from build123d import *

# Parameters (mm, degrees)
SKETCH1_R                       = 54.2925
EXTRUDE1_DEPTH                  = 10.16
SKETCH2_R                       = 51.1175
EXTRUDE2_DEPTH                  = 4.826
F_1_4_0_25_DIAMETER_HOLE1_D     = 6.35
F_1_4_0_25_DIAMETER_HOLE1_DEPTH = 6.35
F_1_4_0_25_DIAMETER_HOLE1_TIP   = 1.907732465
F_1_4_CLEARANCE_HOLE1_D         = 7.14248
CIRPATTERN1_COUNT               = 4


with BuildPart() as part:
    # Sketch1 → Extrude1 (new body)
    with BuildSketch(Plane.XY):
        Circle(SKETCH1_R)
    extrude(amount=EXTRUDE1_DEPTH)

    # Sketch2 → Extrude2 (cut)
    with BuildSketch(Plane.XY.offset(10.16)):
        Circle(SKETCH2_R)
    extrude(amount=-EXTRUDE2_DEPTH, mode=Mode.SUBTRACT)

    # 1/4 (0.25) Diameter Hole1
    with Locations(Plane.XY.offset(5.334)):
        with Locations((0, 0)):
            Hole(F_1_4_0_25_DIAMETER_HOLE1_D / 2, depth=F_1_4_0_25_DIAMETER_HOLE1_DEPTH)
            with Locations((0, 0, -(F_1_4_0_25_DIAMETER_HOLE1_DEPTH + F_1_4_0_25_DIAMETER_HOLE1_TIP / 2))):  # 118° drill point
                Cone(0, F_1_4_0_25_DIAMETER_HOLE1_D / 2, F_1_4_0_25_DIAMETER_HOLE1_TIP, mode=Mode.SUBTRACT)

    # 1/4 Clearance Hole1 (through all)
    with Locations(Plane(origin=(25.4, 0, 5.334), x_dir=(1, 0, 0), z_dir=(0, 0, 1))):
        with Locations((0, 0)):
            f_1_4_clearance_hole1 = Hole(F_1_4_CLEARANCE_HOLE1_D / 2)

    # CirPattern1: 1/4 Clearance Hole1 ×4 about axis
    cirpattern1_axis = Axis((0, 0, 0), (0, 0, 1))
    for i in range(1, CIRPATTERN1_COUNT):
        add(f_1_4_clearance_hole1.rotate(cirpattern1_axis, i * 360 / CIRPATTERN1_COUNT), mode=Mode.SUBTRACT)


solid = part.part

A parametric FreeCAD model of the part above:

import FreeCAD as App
import Part
import Sketcher
Q = App.Units.Quantity

doc = App.newDocument("Part")
body = doc.addObject("PartDesign::Body", "Body")

# Sketch on XY plane
sketch1 = doc.addObject("Sketcher::SketchObject", "Sketch")
body.addObject(sketch1)
sketch1.AttachmentSupport = (doc.XY_Plane, [""])
sketch1.MapMode = "FlatFace"
sketch1.addGeometry(Part.Circle(App.Vector(0, 0, 0), App.Vector(0, 0, 1), 54), False)
sketch1.addConstraint([
    Sketcher.Constraint("Coincident", 0, 3, -1, 1),
    Sketcher.Constraint("Diameter", 0, Q("4.275 in")),
])
pad1 = doc.addObject("PartDesign::Pad", "Pad")
body.addObject(pad1)
pad1.Profile = sketch1
pad1.Length = Q("0.4 in")

# Sketch on XY plane
sketch2 = doc.addObject("Sketcher::SketchObject", "Sketch001")
body.addObject(sketch2)
sketch2.AttachmentSupport = (doc.XY_Plane, [""])
sketch2.MapMode = "FlatFace"
sketch2.AttachmentOffset = App.Placement(App.Vector(0, 0, 0.4 * 25.4), App.Rotation())
sketch2.addGeometry(Part.Circle(App.Vector(0, 0, 0), App.Vector(0, 0, 1), 51), False)
sketch2.addConstraint([
    Sketcher.Constraint("Coincident", 0, 3, -1, 1),
    Sketcher.Constraint("Diameter", 0, Q("4.025 in")),
])
pocket1 = doc.addObject("PartDesign::Pocket", "Pocket")
body.addObject(pocket1)
pocket1.Profile = sketch2
pocket1.Length = Q("0.19 in")

# Sketch on XY plane
sketch3 = doc.addObject("Sketcher::SketchObject", "Sketch002")
body.addObject(sketch3)
sketch3.AttachmentSupport = (doc.XY_Plane, [""])
sketch3.MapMode = "FlatFace"
sketch3.AttachmentOffset = App.Placement(App.Vector(0, 0, 0.21 * 25.4), App.Rotation())
sketch3.addGeometry(Part.Circle(App.Vector(0, 0, 0), App.Vector(0, 0, 1), 3.2), False)
sketch3.addConstraint([
    Sketcher.Constraint("Coincident", 0, 3, -1, 1),
    Sketcher.Constraint("Diameter", 0, Q("0.25 in")),
])
doc.recompute()
hole = doc.addObject("PartDesign::Hole", "Hole")
body.addObject(hole)
hole.Profile = sketch3
hole.ThreadType = "None"
hole.Diameter = Q("0.25 in")
hole.DepthType = "Dimension"
hole.Depth = Q("0.25 in")
hole.DrillPoint = "Angled"
hole.DrillPointAngle = 118

# Sketch on XY plane
sketch4 = doc.addObject("Sketcher::SketchObject", "Sketch003")
body.addObject(sketch4)
sketch4.AttachmentSupport = (doc.XY_Plane, [""])
sketch4.MapMode = "FlatFace"
sketch4.AttachmentOffset = App.Placement(App.Vector(0, 0, 0.21 * 25.4), App.Rotation())
sketch4.addGeometry(Part.Circle(App.Vector(25.4, 0, 0), App.Vector(0, 0, 1), 3.6), False)
sketch4.addConstraint([
    Sketcher.Constraint("PointOnObject", 0, 3, -1),
    Sketcher.Constraint("DistanceX", -1, 1, 0, 3, Q("1 in")),
    Sketcher.Constraint("Diameter", 0, Q("0.2812 in")),
])
doc.recompute()
hole2 = doc.addObject("PartDesign::Hole", "Hole001")
body.addObject(hole2)
hole2.Profile = sketch4
hole2.ThreadType = "None"
hole2.Diameter = Q("0.2812 in")
hole2.DepthType = "ThroughAll"
doc.recompute()

polarpattern = doc.addObject("PartDesign::PolarPattern", "PolarPattern")
body.addObject(polarpattern)
polarpattern.Originals = [hole2]
polarpattern.Axis = (doc.Z_Axis, [""])
polarpattern.Angle = 360
polarpattern.Occurrences = 4
body.Tip = polarpattern

doc.recompute()
